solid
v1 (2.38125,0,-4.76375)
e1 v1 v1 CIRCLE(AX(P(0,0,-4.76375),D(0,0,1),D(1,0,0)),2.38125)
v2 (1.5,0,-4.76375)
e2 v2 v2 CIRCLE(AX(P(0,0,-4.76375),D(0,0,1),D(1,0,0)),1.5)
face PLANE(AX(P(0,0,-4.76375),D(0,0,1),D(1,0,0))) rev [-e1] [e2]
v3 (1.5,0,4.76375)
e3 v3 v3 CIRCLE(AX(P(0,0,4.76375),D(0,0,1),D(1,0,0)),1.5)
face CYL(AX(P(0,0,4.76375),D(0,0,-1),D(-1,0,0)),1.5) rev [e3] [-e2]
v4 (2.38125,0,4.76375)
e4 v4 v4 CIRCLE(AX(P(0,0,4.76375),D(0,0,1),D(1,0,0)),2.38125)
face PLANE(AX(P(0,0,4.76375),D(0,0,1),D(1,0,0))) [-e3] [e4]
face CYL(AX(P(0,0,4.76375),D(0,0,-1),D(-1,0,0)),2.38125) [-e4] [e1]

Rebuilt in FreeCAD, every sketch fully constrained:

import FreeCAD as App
import Part
import Sketcher

V = App.Vector

doc = App.newDocument("Part")
params = doc.addObject("Spreadsheet::Sheet", "Params")
for row, (alias, value) in enumerate([
    ("sketch1_diameter", "3 mm"),
    ("pad1_length", "9.5275 mm"),
], start=1):
    params.set(f"A{row}", alias)
    params.set(f"B{row}", "=" + value)
    params.setAlias(f"B{row}", alias)

body = doc.addObject("PartDesign::Body", "Body")

sketch1 = body.newObject("Sketcher::SketchObject", "Sketch")
sketch1.AttachmentSupport = (doc.getObject("XY_Plane"), [""])
sketch1.MapMode = "FlatFace"
sketch1.addGeometry([
    Part.Circle(V(0, 0, 0), V(0, 0, 1), 2.4),
    Part.Circle(V(0, 0, 0), V(0, 0, 1), 1.5),
], False)
sketch1.addConstraint([
    Sketcher.Constraint("Coincident", 0, 3, -1, 1),
    Sketcher.Constraint("Coincident", 1, 3, -1, 1),
    Sketcher.Constraint("Diameter", 1, 3.0),
    Sketcher.Constraint("Diameter", 0, 4.7625),
])
sketch1.setExpression("Constraints[2]", "Params.sketch1_diameter")
pad1 = body.newObject("PartDesign::Pad", "Pad")
pad1.Profile = sketch1
pad1.setExpression("Length", "Params.pad1_length")
pad1.Midplane = True

doc.recompute()
